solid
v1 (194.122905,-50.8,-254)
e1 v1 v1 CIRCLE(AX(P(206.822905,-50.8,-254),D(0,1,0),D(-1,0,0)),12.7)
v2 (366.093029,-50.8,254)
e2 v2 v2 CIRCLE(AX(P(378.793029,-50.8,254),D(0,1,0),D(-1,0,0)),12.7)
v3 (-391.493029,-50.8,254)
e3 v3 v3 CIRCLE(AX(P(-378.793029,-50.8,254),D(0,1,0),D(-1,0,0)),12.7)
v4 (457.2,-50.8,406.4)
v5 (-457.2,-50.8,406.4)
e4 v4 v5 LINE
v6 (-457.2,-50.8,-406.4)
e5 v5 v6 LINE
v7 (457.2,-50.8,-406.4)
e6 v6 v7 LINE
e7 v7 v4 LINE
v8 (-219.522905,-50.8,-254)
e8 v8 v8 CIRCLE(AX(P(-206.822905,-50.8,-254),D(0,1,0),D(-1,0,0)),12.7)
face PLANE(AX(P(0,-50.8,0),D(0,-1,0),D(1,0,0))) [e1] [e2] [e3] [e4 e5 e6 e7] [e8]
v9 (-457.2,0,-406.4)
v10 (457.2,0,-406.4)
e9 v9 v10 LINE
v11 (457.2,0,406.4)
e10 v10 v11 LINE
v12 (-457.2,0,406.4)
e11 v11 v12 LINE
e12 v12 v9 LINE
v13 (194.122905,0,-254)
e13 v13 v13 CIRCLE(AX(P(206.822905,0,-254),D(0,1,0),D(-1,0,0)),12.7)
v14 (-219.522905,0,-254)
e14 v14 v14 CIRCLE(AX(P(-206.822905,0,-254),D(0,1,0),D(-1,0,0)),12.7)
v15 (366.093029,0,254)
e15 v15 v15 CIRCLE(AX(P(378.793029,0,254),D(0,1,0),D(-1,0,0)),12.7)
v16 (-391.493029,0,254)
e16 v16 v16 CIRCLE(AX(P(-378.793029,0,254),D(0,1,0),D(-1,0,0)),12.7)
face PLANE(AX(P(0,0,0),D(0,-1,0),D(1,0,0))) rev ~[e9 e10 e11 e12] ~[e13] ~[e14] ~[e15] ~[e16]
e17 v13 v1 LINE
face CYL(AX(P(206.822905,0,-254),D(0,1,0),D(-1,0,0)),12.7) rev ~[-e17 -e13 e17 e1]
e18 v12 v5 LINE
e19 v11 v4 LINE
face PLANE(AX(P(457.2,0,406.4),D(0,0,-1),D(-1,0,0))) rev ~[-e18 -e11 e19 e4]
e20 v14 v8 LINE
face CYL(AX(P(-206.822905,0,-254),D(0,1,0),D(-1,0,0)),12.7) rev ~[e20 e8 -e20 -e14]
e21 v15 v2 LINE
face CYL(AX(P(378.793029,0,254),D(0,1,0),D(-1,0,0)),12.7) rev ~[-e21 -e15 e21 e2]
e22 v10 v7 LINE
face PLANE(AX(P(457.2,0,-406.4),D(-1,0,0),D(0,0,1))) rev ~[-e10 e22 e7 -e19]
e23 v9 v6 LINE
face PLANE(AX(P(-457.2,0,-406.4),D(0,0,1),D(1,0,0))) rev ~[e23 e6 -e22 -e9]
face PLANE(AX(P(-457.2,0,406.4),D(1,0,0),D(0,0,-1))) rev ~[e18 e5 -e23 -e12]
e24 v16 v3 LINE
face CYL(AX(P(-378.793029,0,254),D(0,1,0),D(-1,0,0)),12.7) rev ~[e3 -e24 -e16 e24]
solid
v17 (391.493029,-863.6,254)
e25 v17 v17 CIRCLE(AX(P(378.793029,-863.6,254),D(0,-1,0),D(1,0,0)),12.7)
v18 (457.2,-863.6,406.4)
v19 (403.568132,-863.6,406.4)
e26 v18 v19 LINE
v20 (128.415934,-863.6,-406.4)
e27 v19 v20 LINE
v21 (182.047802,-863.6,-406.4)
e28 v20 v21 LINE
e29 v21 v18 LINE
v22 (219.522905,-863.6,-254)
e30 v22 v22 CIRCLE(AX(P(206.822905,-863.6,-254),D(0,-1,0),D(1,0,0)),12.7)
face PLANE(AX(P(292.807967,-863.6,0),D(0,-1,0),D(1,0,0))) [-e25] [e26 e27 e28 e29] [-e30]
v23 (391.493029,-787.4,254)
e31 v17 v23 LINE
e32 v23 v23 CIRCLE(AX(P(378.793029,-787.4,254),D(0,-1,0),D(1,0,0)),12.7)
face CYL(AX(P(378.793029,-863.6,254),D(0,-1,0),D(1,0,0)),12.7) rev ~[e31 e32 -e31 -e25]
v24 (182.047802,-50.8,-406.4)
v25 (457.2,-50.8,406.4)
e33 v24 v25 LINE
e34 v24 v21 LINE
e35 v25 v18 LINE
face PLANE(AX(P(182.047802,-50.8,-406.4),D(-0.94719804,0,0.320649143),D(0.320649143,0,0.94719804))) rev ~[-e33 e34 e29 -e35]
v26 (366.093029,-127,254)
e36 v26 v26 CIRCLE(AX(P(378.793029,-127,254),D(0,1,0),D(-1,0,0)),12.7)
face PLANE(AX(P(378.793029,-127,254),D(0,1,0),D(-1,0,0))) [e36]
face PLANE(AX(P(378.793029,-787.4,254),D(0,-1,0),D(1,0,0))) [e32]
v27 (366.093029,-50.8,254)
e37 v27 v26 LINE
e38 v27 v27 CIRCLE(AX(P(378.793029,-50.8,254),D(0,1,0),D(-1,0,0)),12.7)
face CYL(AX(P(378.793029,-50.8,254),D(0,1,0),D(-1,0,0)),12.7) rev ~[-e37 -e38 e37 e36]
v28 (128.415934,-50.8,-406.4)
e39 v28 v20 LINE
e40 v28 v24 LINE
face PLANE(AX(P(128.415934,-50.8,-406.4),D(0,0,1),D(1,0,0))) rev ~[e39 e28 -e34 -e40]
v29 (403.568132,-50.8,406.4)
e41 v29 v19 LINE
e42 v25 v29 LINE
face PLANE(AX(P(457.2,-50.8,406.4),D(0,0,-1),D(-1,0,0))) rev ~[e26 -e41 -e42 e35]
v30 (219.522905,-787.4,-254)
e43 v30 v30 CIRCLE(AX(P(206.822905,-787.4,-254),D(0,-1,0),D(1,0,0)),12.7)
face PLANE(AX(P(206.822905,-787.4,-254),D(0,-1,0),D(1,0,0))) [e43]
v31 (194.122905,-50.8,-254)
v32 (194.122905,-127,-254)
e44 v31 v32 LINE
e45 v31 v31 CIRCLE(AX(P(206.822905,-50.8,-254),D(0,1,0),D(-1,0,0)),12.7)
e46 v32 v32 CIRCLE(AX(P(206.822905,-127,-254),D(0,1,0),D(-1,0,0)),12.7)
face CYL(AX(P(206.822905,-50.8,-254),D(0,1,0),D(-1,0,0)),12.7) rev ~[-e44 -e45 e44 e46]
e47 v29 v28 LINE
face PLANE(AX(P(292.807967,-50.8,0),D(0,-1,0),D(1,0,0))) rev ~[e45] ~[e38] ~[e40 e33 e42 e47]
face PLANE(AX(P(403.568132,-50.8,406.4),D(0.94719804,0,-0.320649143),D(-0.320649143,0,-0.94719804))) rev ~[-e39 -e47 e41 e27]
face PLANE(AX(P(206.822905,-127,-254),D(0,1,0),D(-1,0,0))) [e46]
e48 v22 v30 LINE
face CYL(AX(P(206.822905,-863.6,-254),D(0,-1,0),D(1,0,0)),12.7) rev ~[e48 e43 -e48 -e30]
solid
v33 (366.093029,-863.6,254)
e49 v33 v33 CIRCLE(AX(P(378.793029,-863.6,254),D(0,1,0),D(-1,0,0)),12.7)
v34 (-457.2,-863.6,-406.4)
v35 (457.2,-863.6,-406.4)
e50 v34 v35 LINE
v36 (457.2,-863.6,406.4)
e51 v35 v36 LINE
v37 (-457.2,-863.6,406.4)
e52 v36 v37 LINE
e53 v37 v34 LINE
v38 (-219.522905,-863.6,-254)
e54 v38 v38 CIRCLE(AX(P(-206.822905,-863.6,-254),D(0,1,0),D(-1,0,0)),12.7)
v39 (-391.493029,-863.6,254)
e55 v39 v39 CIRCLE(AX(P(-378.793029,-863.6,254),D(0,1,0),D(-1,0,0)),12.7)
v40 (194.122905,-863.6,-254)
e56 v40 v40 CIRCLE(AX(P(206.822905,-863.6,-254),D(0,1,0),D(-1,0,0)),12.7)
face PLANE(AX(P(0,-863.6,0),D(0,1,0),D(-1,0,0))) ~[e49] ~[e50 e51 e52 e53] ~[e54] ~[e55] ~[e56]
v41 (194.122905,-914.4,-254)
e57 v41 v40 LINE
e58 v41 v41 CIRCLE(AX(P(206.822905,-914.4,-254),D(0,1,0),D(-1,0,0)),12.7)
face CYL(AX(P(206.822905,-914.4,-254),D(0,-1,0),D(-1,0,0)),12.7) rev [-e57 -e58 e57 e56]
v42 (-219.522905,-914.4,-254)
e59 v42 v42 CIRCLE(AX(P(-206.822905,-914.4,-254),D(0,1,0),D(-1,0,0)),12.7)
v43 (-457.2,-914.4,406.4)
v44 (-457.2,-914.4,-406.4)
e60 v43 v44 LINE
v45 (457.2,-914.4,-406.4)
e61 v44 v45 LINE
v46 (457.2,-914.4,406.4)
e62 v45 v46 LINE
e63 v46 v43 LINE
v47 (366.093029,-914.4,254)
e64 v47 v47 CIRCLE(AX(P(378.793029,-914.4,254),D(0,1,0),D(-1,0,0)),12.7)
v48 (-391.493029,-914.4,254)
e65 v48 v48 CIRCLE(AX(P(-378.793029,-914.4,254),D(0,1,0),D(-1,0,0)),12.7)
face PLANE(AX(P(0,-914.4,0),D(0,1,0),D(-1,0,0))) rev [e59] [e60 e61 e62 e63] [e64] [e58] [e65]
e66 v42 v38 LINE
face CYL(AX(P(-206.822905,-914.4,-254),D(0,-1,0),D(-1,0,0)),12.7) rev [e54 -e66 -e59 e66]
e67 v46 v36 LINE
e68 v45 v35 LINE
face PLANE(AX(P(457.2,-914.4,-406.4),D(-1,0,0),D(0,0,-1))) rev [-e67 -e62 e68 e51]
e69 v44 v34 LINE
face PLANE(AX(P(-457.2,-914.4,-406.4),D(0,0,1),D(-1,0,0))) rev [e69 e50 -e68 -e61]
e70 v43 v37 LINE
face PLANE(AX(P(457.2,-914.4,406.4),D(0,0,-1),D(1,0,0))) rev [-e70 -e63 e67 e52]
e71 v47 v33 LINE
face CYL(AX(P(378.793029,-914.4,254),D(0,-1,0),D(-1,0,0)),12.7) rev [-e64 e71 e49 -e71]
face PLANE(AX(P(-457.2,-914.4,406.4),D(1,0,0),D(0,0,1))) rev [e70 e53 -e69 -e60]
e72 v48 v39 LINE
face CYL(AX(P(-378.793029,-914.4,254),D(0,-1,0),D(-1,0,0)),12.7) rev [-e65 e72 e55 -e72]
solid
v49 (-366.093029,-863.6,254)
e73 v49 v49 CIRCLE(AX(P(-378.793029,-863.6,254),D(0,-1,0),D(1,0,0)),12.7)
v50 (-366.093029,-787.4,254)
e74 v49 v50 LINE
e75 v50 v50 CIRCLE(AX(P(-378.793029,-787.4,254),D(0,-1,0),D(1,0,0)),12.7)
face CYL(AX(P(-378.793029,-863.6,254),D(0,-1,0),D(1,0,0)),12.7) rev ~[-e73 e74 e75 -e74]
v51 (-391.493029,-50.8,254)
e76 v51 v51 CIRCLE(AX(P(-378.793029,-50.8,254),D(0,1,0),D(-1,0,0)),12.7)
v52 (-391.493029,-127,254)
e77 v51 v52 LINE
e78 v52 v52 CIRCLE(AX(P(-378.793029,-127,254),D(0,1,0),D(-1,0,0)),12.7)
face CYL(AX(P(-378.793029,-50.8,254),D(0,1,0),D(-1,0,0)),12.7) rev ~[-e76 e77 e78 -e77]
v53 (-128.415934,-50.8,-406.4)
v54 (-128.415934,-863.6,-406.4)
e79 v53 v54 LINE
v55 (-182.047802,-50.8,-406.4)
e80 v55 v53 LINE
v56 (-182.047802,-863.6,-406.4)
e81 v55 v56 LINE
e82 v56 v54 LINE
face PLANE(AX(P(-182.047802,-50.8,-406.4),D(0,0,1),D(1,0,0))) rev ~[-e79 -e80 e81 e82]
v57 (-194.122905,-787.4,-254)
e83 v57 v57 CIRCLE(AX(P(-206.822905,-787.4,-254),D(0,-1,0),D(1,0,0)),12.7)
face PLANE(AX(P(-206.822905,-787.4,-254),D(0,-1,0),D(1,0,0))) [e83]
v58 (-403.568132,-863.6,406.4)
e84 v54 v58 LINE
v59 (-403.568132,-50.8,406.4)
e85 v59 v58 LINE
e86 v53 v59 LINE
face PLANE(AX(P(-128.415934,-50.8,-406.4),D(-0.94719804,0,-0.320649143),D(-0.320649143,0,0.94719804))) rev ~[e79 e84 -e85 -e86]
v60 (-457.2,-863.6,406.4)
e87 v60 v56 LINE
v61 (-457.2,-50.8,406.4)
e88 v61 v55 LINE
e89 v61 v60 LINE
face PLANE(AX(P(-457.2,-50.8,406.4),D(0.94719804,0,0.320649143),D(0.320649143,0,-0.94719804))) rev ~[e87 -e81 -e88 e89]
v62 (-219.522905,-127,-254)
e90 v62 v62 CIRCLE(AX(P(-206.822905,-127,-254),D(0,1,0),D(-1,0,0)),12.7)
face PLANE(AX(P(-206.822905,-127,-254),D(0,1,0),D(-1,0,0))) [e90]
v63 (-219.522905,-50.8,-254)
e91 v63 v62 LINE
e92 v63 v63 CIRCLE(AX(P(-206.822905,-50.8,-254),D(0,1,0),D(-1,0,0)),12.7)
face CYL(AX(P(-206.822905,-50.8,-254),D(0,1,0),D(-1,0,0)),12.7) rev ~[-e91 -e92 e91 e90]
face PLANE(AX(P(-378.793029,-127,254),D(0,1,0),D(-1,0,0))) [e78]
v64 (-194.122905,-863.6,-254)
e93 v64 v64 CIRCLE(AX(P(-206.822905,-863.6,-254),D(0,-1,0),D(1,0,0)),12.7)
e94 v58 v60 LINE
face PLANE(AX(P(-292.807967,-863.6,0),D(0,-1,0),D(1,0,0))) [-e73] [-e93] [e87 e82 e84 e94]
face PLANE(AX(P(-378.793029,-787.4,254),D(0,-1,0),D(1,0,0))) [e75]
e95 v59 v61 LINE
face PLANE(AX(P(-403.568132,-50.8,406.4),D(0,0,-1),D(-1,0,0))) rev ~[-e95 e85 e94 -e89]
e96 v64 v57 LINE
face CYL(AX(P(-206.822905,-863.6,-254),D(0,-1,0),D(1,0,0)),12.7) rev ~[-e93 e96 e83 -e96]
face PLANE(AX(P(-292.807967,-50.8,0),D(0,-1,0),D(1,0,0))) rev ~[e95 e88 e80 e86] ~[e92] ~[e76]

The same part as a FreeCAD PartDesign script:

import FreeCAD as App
import Part
import Sketcher
Q = App.Units.Quantity

doc = App.newDocument("Part")
body = doc.addObject("PartDesign::Body", "Body")

# Sketch on XZ plane
sketch1 = body.newObject("Sketcher::SketchObject", "Sketch")
sketch1.AttachmentSupport = (doc.getObject("XZ_Plane"), [""])
sketch1.MapMode = "FlatFace"
sketch1.addGeometry(Part.LineSegment(App.Vector(-457, 406, 0), App.Vector(-457, -406, 0)), False)
sketch1.addGeometry(Part.LineSegment(App.Vector(-457, -406, 0), App.Vector(457, -406, 0)), False)
sketch1.addGeometry(Part.LineSegment(App.Vector(457, -406, 0), App.Vector(457, 406, 0)), False)
sketch1.addGeometry(Part.LineSegment(App.Vector(457, 406, 0), App.Vector(-457, 406, 0)), False)
sketch1.addConstraint(Sketcher.Constraint("Coincident", 0, 2, 1, 1))
sketch1.addConstraint(Sketcher.Constraint("Coincident", 1, 2, 2, 1))
sketch1.addConstraint(Sketcher.Constraint("Coincident", 2, 2, 3, 1))
sketch1.addConstraint(Sketcher.Constraint("Coincident", 3, 2, 0, 1))
sketch1.addConstraint(Sketcher.Constraint("Vertical", 0))
sketch1.addConstraint(Sketcher.Constraint("Horizontal", 1))
sketch1.addConstraint(Sketcher.Constraint("Vertical", 2))
sketch1.addConstraint(Sketcher.Constraint("Horizontal", 3))
sketch1.addConstraint(Sketcher.Constraint("Symmetric", 0, 2, 2, 2, -1, 1))
sketch1.addConstraint(Sketcher.Constraint("DistanceX", 1, 1, 1, 2, Q("36 in")))
sketch1.addConstraint(Sketcher.Constraint("DistanceY", 0, 2, 0, 1, Q("32 in")))
pad1 = body.newObject("PartDesign::Pad", "Pad")
pad1.Profile = sketch1
pad1.Length = Q("2 in")

# Sketch on XZ plane
sketch2 = body.newObject("Sketcher::SketchObject", "Sketch001")
sketch2.AttachmentSupport = (doc.getObject("XZ_Plane"), [""])
sketch2.MapMode = "FlatFace"
sketch2.addGeometry(Part.Circle(App.Vector(379, 254, 0), App.Vector(0, 0, 1), 13), False)
sketch2.addGeometry(Part.Circle(App.Vector(207, -254, 0), App.Vector(0, 0, 1), 13), False)
sketch2.addGeometry(Part.Circle(App.Vector(-379, 254, 0), App.Vector(0, 0, 1), 13), False)
sketch2.addGeometry(Part.Circle(App.Vector(-207, -254, 0), App.Vector(0, 0, 1), 13), False)
sketch2.addConstraint(Sketcher.Constraint("Equal", 0, 1))
sketch2.addConstraint(Sketcher.Constraint("Equal", 1, 2))
sketch2.addConstraint(Sketcher.Constraint("Equal", 2, 3))
sketch2.addConstraint(Sketcher.Constraint("Symmetric", 0, 3, 2, 3, -2))
sketch2.addConstraint(Sketcher.Constraint("Symmetric", 1, 3, 3, 3, -2))
sketch2.addConstraint(Sketcher.Constraint("Diameter", 0, Q("1 in")))
sketch2.addConstraint(Sketcher.Constraint("DistanceY", -1, 1, 0, 3, Q("10 in")))
sketch2.addConstraint(Sketcher.Constraint("DistanceY", 1, 3, -1, 1, Q("10 in")))
sketch2.addConstraint(Sketcher.Constraint("DistanceX", -1, 1, 0, 3, Q("378.793029 mm")))
sketch2.addConstraint(Sketcher.Constraint("DistanceX", 3, 3, 1, 3, Q("413.64581 mm")))
pocket1 = body.newObject("PartDesign::Pocket", "Pocket")
pocket1.Profile = sketch2
pocket1.Type = "ThroughAll"
pocket1.Reversed = True
body2 = doc.addObject("PartDesign::Body", "Body001")
doc.recompute()

mirroring = doc.addObject("Part::Mirroring", "Mirroring")
mirroring.Source = body
mirroring.Base = App.Vector(0, -457.2, 0)
mirroring.Normal = App.Vector(0, -1, 0)
body2.BaseFeature = mirroring
doc.recompute()
body3 = doc.addObject("PartDesign::Body", "Body002")

# Sketch on XZ plane
sketch3 = body3.newObject("Sketcher::SketchObject", "Sketch002")
sketch3.AttachmentSupport = (doc.getObject("XZ_Plane002"), [""])
sketch3.MapMode = "FlatFace"
sketch3.AttachmentOffset = App.Placement(App.Vector(0, 0, 2 * 25.4), App.Rotation())
sketch3.addGeometry(Part.LineSegment(App.Vector(-128, -406, 0), App.Vector(-404, 406, 0)), False)
sketch3.addGeometry(Part.LineSegment(App.Vector(-404, 406, 0), App.Vector(-457, 406, 0)), False)
sketch3.addGeometry(Part.LineSegment(App.Vector(-457, 406, 0), App.Vector(-182, -406, 0)), False)
sketch3.addGeometry(Part.LineSegment(App.Vector(-182, -406, 0), App.Vector(-128, -406, 0)), False)
sketch3.addConstraint(Sketcher.Constraint("Coincident", 0, 2, 1, 1))
sketch3.addConstraint(Sketcher.Constraint("Coincident", 1, 2, 2, 1))
sketch3.addConstraint(Sketcher.Constraint("Coincident", 2, 2, 3, 1))
sketch3.addConstraint(Sketcher.Constraint("Coincident", 3, 2, 0, 1))
sketch3.addConstraint(Sketcher.Constraint("Horizontal", 1))
sketch3.addConstraint(Sketcher.Constraint("Horizontal", 3))
sketch3.addConstraint(Sketcher.Constraint("Parallel", 0, 2))
sketch3.addConstraint(Sketcher.Constraint("DistanceY", -1, 1, 0, 2, Q("16 in")))
sketch3.addConstraint(Sketcher.Constraint("DistanceX", 1, 2, -1, 1, Q("18 in")))
sketch3.addConstraint(Sketcher.Constraint("DistanceY", 2, 2, -1, 1, Q("16 in")))
sketch3.addConstraint(Sketcher.Constraint("DistanceX", 2, 2, -1, 1, Q("182.047802 mm")))
sketch3.addConstraint(Sketcher.Constraint("DistanceX", 1, 2, 1, 1, Q("53.631868 mm")))
pad2 = body3.newObject("PartDesign::Pad", "Pad001")
pad2.Profile = sketch3
pad2.Length = Q("32 in")
body4 = doc.addObject("PartDesign::Body", "Body003")

# Sketch on XZ plane
sketch4 = body4.newObject("Sketcher::SketchObject", "Sketch003")
sketch4.AttachmentSupport = (doc.getObject("XZ_Plane003"), [""])
sketch4.MapMode = "FlatFace"
sketch4.AttachmentOffset = App.Placement(App.Vector(0, 0, 2 * 25.4), App.Rotation())
sketch4.addGeometry(Part.LineSegment(App.Vector(457, 406, 0), App.Vector(404, 406, 0)), False)
sketch4.addGeometry(Part.LineSegment(App.Vector(404, 406, 0), App.Vector(128, -406, 0)), False)
sketch4.addGeometry(Part.LineSegment(App.Vector(128, -406, 0), App.Vector(182, -406, 0)), False)
sketch4.addGeometry(Part.LineSegment(App.Vector(182, -406, 0), App.Vector(457, 406, 0)), False)
sketch4.addConstraint(Sketcher.Constraint("Coincident", 0, 2, 1, 1))
sketch4.addConstraint(Sketcher.Constraint("Coincident", 1, 2, 2, 1))
sketch4.addConstraint(Sketcher.Constraint("Coincident", 2, 2, 3, 1))
sketch4.addConstraint(Sketcher.Constraint("Coincident", 3, 2, 0, 1))
sketch4.addConstraint(Sketcher.Constraint("Horizontal", 0))
sketch4.addConstraint(Sketcher.Constraint("Horizontal", 2))
sketch4.addConstraint(Sketcher.Constraint("Parallel", 1, 3))
sketch4.addConstraint(Sketcher.Constraint("DistanceY", -1, 1, 0, 2, Q("16 in")))
sketch4.addConstraint(Sketcher.Constraint("DistanceY", 1, 2, -1, 1, Q("16 in")))
sketch4.addConstraint(Sketcher.Constraint("DistanceX", -1, 1, 3, 2, Q("18 in")))
sketch4.addConstraint(Sketcher.Constraint("DistanceX", -1, 1, 2, 2, Q("182.047802 mm")))
sketch4.addConstraint(Sketcher.Constraint("DistanceX", 0, 2, 0, 1, Q("53.631868 mm")))
pad3 = body4.newObject("PartDesign::Pad", "Pad002")
pad3.Profile = sketch4
pad3.Length = Q("32 in")
body5 = doc.addObject("PartDesign::Body", "Body004")
body5.AllowCompound = True

# Sketch on XZ plane
sketch5 = body5.newObject("Sketcher::SketchObject", "Sketch004")
sketch5.AttachmentSupport = (doc.getObject("XZ_Plane004"), [""])
sketch5.MapMode = "FlatFace"
sketch5.AttachmentOffset = App.Placement(App.Vector(0, 0, 2 * 25.4), App.Rotation())
sketch5.addGeometry(Part.Circle(App.Vector(379, 254, 0), App.Vector(0, 0, 1), 13), False)
sketch5.addGeometry(Part.Circle(App.Vector(207, -254, 0), App.Vector(0, 0, 1), 13), False)
sketch5.addGeometry(Part.Circle(App.Vector(-379, 254, 0), App.Vector(0, 0, 1), 13), False)
sketch5.addGeometry(Part.Circle(App.Vector(-207, -254, 0), App.Vector(0, 0, 1), 13), False)
sketch5.addConstraint(Sketcher.Constraint("Equal", 0, 1))
sketch5.addConstraint(Sketcher.Constraint("Equal", 1, 2))
sketch5.addConstraint(Sketcher.Constraint("Equal", 2, 3))
sketch5.addConstraint(Sketcher.Constraint("Symmetric", 0, 3, 2, 3, -2))
sketch5.addConstraint(Sketcher.Constraint("Symmetric", 1, 3, 3, 3, -2))
sketch5.addConstraint(Sketcher.Constraint("Diameter", 0, Q("1 in")))
sketch5.addConstraint(Sketcher.Constraint("DistanceY", -1, 1, 0, 3, Q("10 in")))
sketch5.addConstraint(Sketcher.Constraint("DistanceY", 1, 3, -1, 1, Q("10 in")))
sketch5.addConstraint(Sketcher.Constraint("DistanceX", -1, 1, 0, 3, Q("378.793029 mm")))
sketch5.addConstraint(Sketcher.Constraint("DistanceX", 3, 3, 1, 3, Q("413.64581 mm")))
pad4 = body5.newObject("PartDesign::Pad", "Pad003")
pad4.Profile = sketch5
pad4.Length = Q("3 in")
doc.recompute()

body6 = doc.addObject("PartDesign::Body", "Body005")
body6.BaseFeature = body5
boolean = body3.newObject("PartDesign::Boolean", "Boolean")
boolean.Type = "Cut"
boolean.addObjects([body6])
doc.recompute()

boolean2 = body4.newObject("PartDesign::Boolean", "Boolean001")
boolean2.Type = "Cut"
boolean2.addObjects([body5])
body7 = doc.addObject("PartDesign::Body", "Body006")
body7.AllowCompound = True

# Sketch on XZ plane
sketch6 = body7.newObject("Sketcher::SketchObject", "Sketch005")
sketch6.AttachmentSupport = (doc.getObject("XZ_Plane006"), [""])
sketch6.MapMode = "FlatFace"
sketch6.AttachmentOffset = App.Placement(App.Vector(0, 0, 34 * 25.4), App.Rotation())
sketch6.addGeometry(Part.Circle(App.Vector(-379, 254, 0), App.Vector(0, 0, 1), 13), False)
sketch6.addGeometry(Part.Circle(App.Vector(-207, -254, 0), App.Vector(0, 0, 1), 13), False)
sketch6.addGeometry(Part.Circle(App.Vector(379, 254, 0), App.Vector(0, 0, 1), 13), False)
sketch6.addGeometry(Part.Circle(App.Vector(207, -254, 0), App.Vector(0, 0, 1), 13), False)
sketch6.addConstraint(Sketcher.Constraint("Equal", 0, 1))
sketch6.addConstraint(Sketcher.Constraint("Equal", 1, 2))
sketch6.addConstraint(Sketcher.Constraint("Equal", 2, 3))
sketch6.addConstraint(Sketcher.Constraint("Symmetric", 0, 3, 2, 3, -2))
sketch6.addConstraint(Sketcher.Constraint("Symmetric", 1, 3, 3, 3, -2))
sketch6.addConstraint(Sketcher.Constraint("Diameter", 0, Q("1 in")))
sketch6.addConstraint(Sketcher.Constraint("DistanceY", -1, 1, 0, 3, Q("10 in")))
sketch6.addConstraint(Sketcher.Constraint("DistanceY", 1, 3, -1, 1, Q("10 in")))
sketch6.addConstraint(Sketcher.Constraint("DistanceX", 0, 3, -1, 1, Q("378.793029 mm")))
sketch6.addConstraint(Sketcher.Constraint("DistanceX", 1, 3, 3, 3, Q("413.64581 mm")))
pad5 = body7.newObject("PartDesign::Pad", "Pad004")
pad5.Profile = sketch6
pad5.Length = Q("3 in")
pad5.Reversed = True
doc.recompute()

body8 = doc.addObject("PartDesign::Body", "Body007")
body8.BaseFeature = body7
boolean3 = body3.newObject("PartDesign::Boolean", "Boolean002")
boolean3.Type = "Cut"
boolean3.addObjects([body8])
doc.recompute()

boolean4 = body4.newObject("PartDesign::Boolean", "Boolean003")
boolean4.Type = "Cut"
boolean4.addObjects([body7])
mirroring.Visibility = False

doc.recompute()
